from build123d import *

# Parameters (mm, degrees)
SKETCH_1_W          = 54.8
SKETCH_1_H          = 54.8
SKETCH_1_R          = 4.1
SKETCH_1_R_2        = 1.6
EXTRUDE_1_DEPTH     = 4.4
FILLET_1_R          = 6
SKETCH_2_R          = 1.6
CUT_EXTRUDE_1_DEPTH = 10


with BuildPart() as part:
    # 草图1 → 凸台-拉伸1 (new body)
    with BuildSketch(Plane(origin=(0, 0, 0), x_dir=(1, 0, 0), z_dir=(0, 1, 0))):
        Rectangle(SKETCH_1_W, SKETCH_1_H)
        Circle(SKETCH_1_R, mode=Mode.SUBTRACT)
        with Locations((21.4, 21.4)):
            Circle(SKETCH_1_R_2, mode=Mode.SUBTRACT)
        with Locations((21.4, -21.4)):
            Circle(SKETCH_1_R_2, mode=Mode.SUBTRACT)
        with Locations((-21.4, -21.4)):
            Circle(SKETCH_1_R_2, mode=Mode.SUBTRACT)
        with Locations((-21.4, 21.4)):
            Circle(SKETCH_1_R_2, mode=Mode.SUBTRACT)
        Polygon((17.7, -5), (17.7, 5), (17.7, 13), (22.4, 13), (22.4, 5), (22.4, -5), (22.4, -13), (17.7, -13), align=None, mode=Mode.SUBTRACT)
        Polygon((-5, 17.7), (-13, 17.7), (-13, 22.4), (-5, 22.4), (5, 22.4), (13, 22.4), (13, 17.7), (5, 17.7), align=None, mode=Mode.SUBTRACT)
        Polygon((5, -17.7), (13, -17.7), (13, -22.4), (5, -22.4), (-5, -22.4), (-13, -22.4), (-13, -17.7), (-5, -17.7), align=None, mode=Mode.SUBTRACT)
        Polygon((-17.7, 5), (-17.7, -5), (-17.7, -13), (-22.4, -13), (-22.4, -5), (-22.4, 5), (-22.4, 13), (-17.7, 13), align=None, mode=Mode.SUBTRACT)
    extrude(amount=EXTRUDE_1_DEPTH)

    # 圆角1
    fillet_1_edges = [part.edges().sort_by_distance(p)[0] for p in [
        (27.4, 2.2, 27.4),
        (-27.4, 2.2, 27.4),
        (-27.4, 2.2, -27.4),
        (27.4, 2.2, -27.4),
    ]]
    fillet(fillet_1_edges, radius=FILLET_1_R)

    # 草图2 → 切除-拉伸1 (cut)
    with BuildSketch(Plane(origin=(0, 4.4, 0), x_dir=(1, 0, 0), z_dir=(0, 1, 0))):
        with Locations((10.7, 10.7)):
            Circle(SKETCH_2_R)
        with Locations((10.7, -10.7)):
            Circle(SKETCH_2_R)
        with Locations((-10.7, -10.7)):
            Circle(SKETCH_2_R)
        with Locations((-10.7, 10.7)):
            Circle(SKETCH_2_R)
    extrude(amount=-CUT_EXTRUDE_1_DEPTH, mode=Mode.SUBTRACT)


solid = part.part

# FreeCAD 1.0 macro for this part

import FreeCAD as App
import Part
import Sketcher
from FreeCAD import Vector
Q = App.Units.Quantity


def edges_at(feature, points):
    """Names of the edges that pass closest to the given points."""
    edges = feature.Shape.Edges
    near = lambda p: min(range(len(edges)), key=lambda i: edges[i].distToShape(Part.Vertex(*p))[0])
    return sorted({f"Edge{near(p) + 1}" for p in points})


def add_polygon(sketch, points):
    """Adds a closed chain of lines whose ends are joined by coincident constraints."""
    first, n = sketch.GeometryCount, len(points)
    for a, b in zip(points, points[1:] + points[:1]):
        sketch.addGeometry(Part.LineSegment(App.Vector(*a, 0), App.Vector(*b, 0)), False)
    for i in range(n):
        sketch.addConstraint(Sketcher.Constraint("Coincident", first + i, 2, first + (i + 1) % n, 1))

doc = App.newDocument("Part")
body = doc.addObject("PartDesign::Body", "Body")

# Sketch on XZ plane
sketch1 = body.newObject("Sketcher::SketchObject", "Sketch")
sketch1.AttachmentSupport = (doc.getObject("XZ_Plane"), [""])
sketch1.MapMode = "FlatFace"
add_polygon(sketch1, [(-27.4, -27.4), (-27.4, 27.4), (27.4, 27.4), (27.4, -27.4)])  # lines 0-3
sketch1.addGeometry(Part.Circle(Vector(-21.4, 21.4, 0), Vector(0, 0, 1), 1.6), False)  # 4
add_polygon(sketch1, [(-13, 17.7), (13, 17.7), (13, 22.4), (-13, 22.4)])  # lines 5-8
sketch1.addGeometry(Part.Circle(Vector(21.4, 21.4, 0), Vector(0, 0, 1), 1.6), False)  # 9
add_polygon(sketch1, [(-17.7, -13), (-17.7, 13), (-22.4, 13), (-22.4, -13)])  # lines 10-13
sketch1.addGeometry(Part.Circle(Vector(-21.4, -21.4, 0), Vector(0, 0, 1), 1.6), False)  # 14
sketch1.addGeometry(Part.Circle(Vector(0, 0, 0), Vector(0, 0, 1), 4.1), False)  # 15
add_polygon(sketch1, [(17.7, 13), (17.7, -13), (22.4, -13), (22.4, 13)])  # lines 16-19
add_polygon(sketch1, [(13, -17.7), (-13, -17.7), (-13, -22.4), (13, -22.4)])  # lines 20-23
sketch1.addGeometry(Part.Circle(Vector(21.4, -21.4, 0), Vector(0, 0, 1), 1.6), False)  # 24
sketch1.addConstraint([
    Sketcher.Constraint("Vertical", 0),
    Sketcher.Constraint("Horizontal", 1),
    Sketcher.Constraint("Vertical", 2),
    Sketcher.Constraint("Horizontal", 3),
    Sketcher.Constraint("Horizontal", 5),
    Sketcher.Constraint("Vertical", 6),
    Sketcher.Constraint("Horizontal", 7),
    Sketcher.Constraint("Vertical", 8),
    Sketcher.Constraint("Vertical", 10),
    Sketcher.Constraint("Horizontal", 11),
    Sketcher.Constraint("Vertical", 12),
    Sketcher.Constraint("Horizontal", 13),
    Sketcher.Constraint("Vertical", 16),
    Sketcher.Constraint("Horizontal", 17),
    Sketcher.Constraint("Vertical", 18),
    Sketcher.Constraint("Horizontal", 19),
    Sketcher.Constraint("Horizontal", 20),
    Sketcher.Constraint("Vertical", 21),
    Sketcher.Constraint("Horizontal", 22),
    Sketcher.Constraint("Vertical", 23),
    Sketcher.Constraint("Coincident", 15, 3, -1, 1),
    Sketcher.Constraint("Equal", 4, 9),
    Sketcher.Constraint("Equal", 9, 14),
    Sketcher.Constraint("Equal", 14, 24),
    Sketcher.Constraint("Symmetric", 9, 3, 14, 3, -1, 1),
    Sketcher.Constraint("Symmetric", 4, 3, 24, 3, -1, 1),
    Sketcher.Constraint("Symmetric", 0, 2, 2, 2, -1, 1),
    Sketcher.Constraint("Symmetric", 10, 2, 16, 2, -1, 1),
    Sketcher.Constraint("Symmetric", 12, 2, 18, 2, -1, 1),
    Sketcher.Constraint("Symmetric", 5, 2, 20, 2, -1, 1),
    Sketcher.Constraint("Symmetric", 7, 2, 22, 2, -1, 1),
    Sketcher.Constraint("Symmetric", 4, 3, 9, 3, -2),
    Sketcher.Constraint("Horizontal", 13, 2, 16, 2),
    Sketcher.Constraint("Vertical", 8, 2, 20, 2),
    Sketcher.Constraint("Equal", 3, 0),
    Sketcher.Constraint("Equal", 19, 6),
    Sketcher.Constraint("Equal", 22, 10),
    Sketcher.Constraint("Diameter", 4, Q("3.2 mm")),
    Sketcher.Constraint("Diameter", 15, Q("8.2 mm")),
    Sketcher.Constraint("DistanceX", 5, 1, 5, 2, Q("26 mm")),
    Sketcher.Constraint("DistanceX", 1, 1, 1, 2, Q("54.8 mm")),
    Sketcher.Constraint("DistanceX", 11, 2, 11, 1, Q("4.7 mm")),
    Sketcher.Constraint("DistanceX", 0, 2, 4, 3, Q("6 mm")),
    Sketcher.Constraint("DistanceY", 4, 3, 0, 2, Q("6 mm")),
    Sketcher.Constraint("DistanceY", 9, 3, 6, 2, Q("1 mm")),
    Sketcher.Constraint("DistanceX", 11, 2, 4, 3, Q("1 mm")),
])
pad1 = body.newObject("PartDesign::Pad", "Pad")
pad1.Profile = sketch1
pad1.Length = 4.4
pad1.Reversed = True
doc.recompute()

fillet = body.newObject("PartDesign::Fillet", "Fillet")
fillet.Base = (pad1, edges_at(pad1, [
    (27.4, 2.2, 27.4),
    (-27.4, 2.2, 27.4),
    (-27.4, 2.2, -27.4),
    (27.4, 2.2, -27.4),
]))
fillet.Radius = 6

# Sketch on XZ plane
sketch2 = body.newObject("Sketcher::SketchObject", "Sketch001")
sketch2.AttachmentSupport = (doc.getObject("XZ_Plane"), [""])
sketch2.MapMode = "FlatFace"
sketch2.AttachmentOffset = App.Placement(Vector(0, 0, -4.4), App.Rotation())
sketch2.addGeometry([
    Part.Circle(Vector(10.7, -10.7, 0), Vector(0, 0, 1), 1.6),
    Part.Circle(Vector(10.7, 10.7, 0), Vector(0, 0, 1), 1.6),
    Part.Circle(Vector(-10.7, 10.7, 0), Vector(0, 0, 1), 1.6),
    Part.Circle(Vector(-10.7, -10.7, 0), Vector(0, 0, 1), 1.6),
], False)
sketch2.addConstraint([
    Sketcher.Constraint("Equal", 0, 1),
    Sketcher.Constraint("Equal", 1, 2),
    Sketcher.Constraint("Equal", 2, 3),
    Sketcher.Constraint("Symmetric", 0, 3, 2, 3, -1, 1),
    Sketcher.Constraint("Symmetric", 1, 3, 3, 3, -1, 1),
    Sketcher.Constraint("Symmetric", 1, 3, 2, 3, -2),
    Sketcher.Constraint("Diameter", 0, Q("3.2 mm")),
    Sketcher.Constraint("DistanceX", -1, 1, 0, 3, Q("10.7 mm")),
    Sketcher.Constraint("DistanceY", 0, 3, -1, 1, Q("10.7 mm")),
])
pocket1 = body.newObject("PartDesign::Pocket", "Pocket")
pocket1.Profile = sketch2
pocket1.Length = 10
pocket1.Reversed = True

doc.recompute()
